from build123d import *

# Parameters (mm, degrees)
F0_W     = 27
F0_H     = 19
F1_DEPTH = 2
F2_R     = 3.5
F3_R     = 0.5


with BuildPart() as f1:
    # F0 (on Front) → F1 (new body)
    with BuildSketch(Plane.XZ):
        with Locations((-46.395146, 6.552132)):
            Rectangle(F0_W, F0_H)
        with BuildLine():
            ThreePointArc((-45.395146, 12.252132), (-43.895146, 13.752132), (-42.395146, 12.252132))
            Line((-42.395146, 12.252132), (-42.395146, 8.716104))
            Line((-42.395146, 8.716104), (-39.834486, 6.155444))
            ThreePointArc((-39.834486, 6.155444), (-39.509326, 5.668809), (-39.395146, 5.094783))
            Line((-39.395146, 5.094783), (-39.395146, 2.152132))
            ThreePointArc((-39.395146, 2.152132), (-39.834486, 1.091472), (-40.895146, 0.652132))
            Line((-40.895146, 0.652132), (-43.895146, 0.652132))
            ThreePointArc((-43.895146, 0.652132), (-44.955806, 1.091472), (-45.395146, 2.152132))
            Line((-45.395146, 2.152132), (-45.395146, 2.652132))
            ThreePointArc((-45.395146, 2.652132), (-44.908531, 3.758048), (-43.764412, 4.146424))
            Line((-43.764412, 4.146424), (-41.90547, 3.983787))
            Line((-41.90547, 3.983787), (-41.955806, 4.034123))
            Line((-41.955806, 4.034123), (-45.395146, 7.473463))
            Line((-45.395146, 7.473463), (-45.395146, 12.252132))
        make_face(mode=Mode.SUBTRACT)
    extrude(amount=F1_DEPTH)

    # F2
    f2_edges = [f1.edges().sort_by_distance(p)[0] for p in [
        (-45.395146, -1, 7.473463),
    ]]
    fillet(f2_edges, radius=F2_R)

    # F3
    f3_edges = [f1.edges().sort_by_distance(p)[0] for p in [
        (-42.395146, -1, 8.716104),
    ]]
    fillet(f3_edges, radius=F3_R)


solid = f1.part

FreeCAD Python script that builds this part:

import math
import FreeCAD as App
import Part
import Sketcher
from FreeCAD import Vector
Q = App.Units.Quantity


def edges_at(feature, points):
    """Names of the edges that pass closest to the given points."""
    edges = feature.Shape.Edges
    near = lambda p: min(range(len(edges)), key=lambda i: edges[i].distToShape(Part.Vertex(*p))[0])
    return sorted({f"Edge{near(p) + 1}" for p in points})

doc = App.newDocument("Part")
body = doc.addObject("PartDesign::Body", "Body")

# Sketch on XZ plane
sketch1 = doc.addObject("Sketcher::SketchObject", "Sketch")
body.addObject(sketch1)
sketch1.AttachmentSupport = (doc.XZ_Plane, [""])
sketch1.MapMode = "FlatFace"
sketch1.addGeometry([
    Part.LineSegment(Vector(-59.9, 16.1, 0), Vector(-59.9, -2.9, 0)),  # 0
    Part.LineSegment(Vector(-59.9, -2.9, 0), Vector(-32.9, -2.9, 0)),  # 1
    Part.LineSegment(Vector(-32.9, -2.9, 0), Vector(-32.9, 16.1, 0)),  # 2
    Part.LineSegment(Vector(-32.9, 16.1, 0), Vector(-59.9, 16.1, 0)),  # 3
    Part.LineSegment(Vector(-45.4, 7.5, 0), Vector(-45.4, 12.3, 0)),  # 4
    Part.ArcOfCircle(Part.Circle(Vector(-43.9, 12.3, 0), Vector(0, 0, 1), 1.5), math.radians(0), math.radians(180)),  # 5
    Part.LineSegment(Vector(-42.4, 12.3, 0), Vector(-42.4, 8.7, 0)),  # 6
    Part.LineSegment(Vector(-42.4, 8.7, 0), Vector(-39.8, 6.2, 0)),  # 7
    Part.ArcOfCircle(Part.Circle(Vector(-40.9, 5.1, 0), Vector(0, 0, 1), 1.5), math.radians(0), math.radians(45)),  # 8
    Part.LineSegment(Vector(-39.4, 5.1, 0), Vector(-39.4, 2.2, 0)),  # 9
    Part.ArcOfCircle(Part.Circle(Vector(-40.9, 2.2, 0), Vector(0, 0, 1), 1.5), math.radians(-90), math.radians(0)),  # 10
    Part.LineSegment(Vector(-40.9, 0.7, 0), Vector(-43.9, 0.7, 0)),  # 11
    Part.ArcOfCircle(Part.Circle(Vector(-43.9, 2.2, 0), Vector(0, 0, 1), 1.5), math.radians(-180), math.radians(-90)),  # 12
    Part.LineSegment(Vector(-45.4, 2.2, 0), Vector(-45.4, 2.7, 0)),  # 13
    Part.ArcOfCircle(Part.Circle(Vector(-43.9, 2.7, 0), Vector(0, 0, 1), 1.5), math.radians(85), math.radians(180)),  # 14
    Part.LineSegment(Vector(-43.8, 4.1, 0), Vector(-41.9, 4, 0)),  # 15
    Part.LineSegment(Vector(-41.9, 4, 0), Vector(-45.4, 7.5, 0)),  # 16
], False)
sketch1.addConstraint([
    Sketcher.Constraint("Coincident", 0, 2, 1, 1),
    Sketcher.Constraint("Coincident", 1, 2, 2, 1),
    Sketcher.Constraint("Coincident", 2, 2, 3, 1),
    Sketcher.Constraint("Coincident", 3, 2, 0, 1),
    Sketcher.Constraint("Tangent", 4, 2, 5, 2),
    Sketcher.Constraint("Tangent", 5, 1, 6, 1),
    Sketcher.Constraint("Coincident", 6, 2, 7, 1),
    Sketcher.Constraint("Coincident", 7, 2, 8, 2),
    Sketcher.Constraint("Coincident", 8, 1, 9, 1),
    Sketcher.Constraint("Tangent", 9, 2, 10, 2),
    Sketcher.Constraint("Tangent", 10, 1, 11, 1),
    Sketcher.Constraint("Tangent", 11, 2, 12, 2),
    Sketcher.Constraint("Tangent", 12, 1, 13, 1),
    Sketcher.Constraint("Tangent", 13, 2, 14, 2),
    Sketcher.Constraint("Tangent", 14, 1, 15, 1),
    Sketcher.Constraint("Coincident", 15, 2, 16, 1),
    Sketcher.Constraint("Coincident", 16, 2, 4, 1),
    Sketcher.Constraint("Vertical", 0),
    Sketcher.Constraint("Horizontal", 1),
    Sketcher.Constraint("Vertical", 2),
    Sketcher.Constraint("Horizontal", 3),
    Sketcher.Constraint("Vertical", 4),
    Sketcher.Constraint("Vertical", 6),
    Sketcher.Constraint("Vertical", 9),
    Sketcher.Constraint("Horizontal", 11),
    Sketcher.Constraint("Vertical", 13),
    Sketcher.Constraint("Equal", 5, 10),
    Sketcher.Constraint("Equal", 10, 12),
    Sketcher.Constraint("Equal", 12, 14),
    Sketcher.Constraint("Parallel", 7, 16),
    Sketcher.Constraint("Vertical", 5, 3, 12, 3),
    Sketcher.Constraint("Radius", 5, 1.5),
    Sketcher.Constraint("DistanceX", 1, 1, 1, 2, 27.0),
    Sketcher.Constraint("DistanceX", 11, 2, 11, 1, 3.0),
    Sketcher.Constraint("DistanceY", 0, 2, 0, 1, 19.0),
    Sketcher.Constraint("Angle", 7, Q("-45 deg")),
    Sketcher.Constraint("Angle", 15, Q("-5.00002 deg")),
    Sketcher.Constraint("DistanceY", 13, 1, 13, 2, 0.5),
    Sketcher.Constraint("DistanceX", 0, 2, 12, 3, 16.000001),
    Sketcher.Constraint("DistanceY", 10, 3, 5, 3, 10.099999),
    Sketcher.Constraint("DistanceY", 0, 2, 12, 3, 5.100001),
    Sketcher.Constraint("Radius", 8, 1.499991),
    Sketcher.Constraint("DistanceY", 15, 2, 8, 3, 1.111),
    Sketcher.Constraint("DistanceY", 4, 1, 4, 2, 4.778669),
    Sketcher.Constraint("DistanceY", 9, 2, 9, 1, 2.942651),
    Sketcher.Constraint("Distance", 7, 3.62132),
    Sketcher.Constraint("DistanceY", -1, 1, 14, 3, 2.652132),
    Sketcher.Constraint("DistanceX", 14, 1, -1, 1, 43.764412),
])
pad1 = doc.addObject("PartDesign::Pad", "Pad")
body.addObject(pad1)
pad1.Profile = sketch1
pad1.Length = 2
doc.recompute()

fillet = doc.addObject("PartDesign::Fillet", "Fillet")
body.addObject(fillet)
fillet.Base = (pad1, edges_at(pad1, [(-45.395, -1, 7.473)]))
fillet.Radius = 3.5
doc.recompute()

fillet2 = doc.addObject("PartDesign::Fillet", "Fillet001")
body.addObject(fillet2)
fillet2.Base = (fillet, edges_at(fillet, [(-42.395, -1, 8.716)]))
fillet2.Radius = 0.5

doc.recompute()
